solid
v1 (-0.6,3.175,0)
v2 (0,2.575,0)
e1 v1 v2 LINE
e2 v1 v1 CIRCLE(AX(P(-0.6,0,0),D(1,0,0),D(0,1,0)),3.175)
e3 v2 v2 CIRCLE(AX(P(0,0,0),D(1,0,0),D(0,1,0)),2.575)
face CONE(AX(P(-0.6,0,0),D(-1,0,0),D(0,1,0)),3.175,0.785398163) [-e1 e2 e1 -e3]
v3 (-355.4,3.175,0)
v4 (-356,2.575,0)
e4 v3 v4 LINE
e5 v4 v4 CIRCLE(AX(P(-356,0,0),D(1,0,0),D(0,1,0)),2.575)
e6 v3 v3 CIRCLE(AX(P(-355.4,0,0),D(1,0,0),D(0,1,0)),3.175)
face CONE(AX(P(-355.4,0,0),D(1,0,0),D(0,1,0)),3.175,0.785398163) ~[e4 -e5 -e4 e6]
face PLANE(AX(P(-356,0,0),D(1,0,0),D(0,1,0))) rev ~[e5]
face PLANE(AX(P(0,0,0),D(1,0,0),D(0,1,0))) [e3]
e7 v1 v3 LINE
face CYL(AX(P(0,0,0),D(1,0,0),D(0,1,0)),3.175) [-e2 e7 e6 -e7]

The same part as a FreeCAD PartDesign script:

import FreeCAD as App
import Part
import Sketcher


def edges_at(feature, points):
    """Names of the edges that pass closest to the given points."""
    edges = feature.Shape.Edges
    near = lambda p: min(range(len(edges)), key=lambda i: edges[i].distToShape(Part.Vertex(*p))[0])
    return sorted({f"Edge{near(p) + 1}" for p in points})

doc = App.newDocument("Part")
body = doc.addObject("PartDesign::Body", "Body")

# Sketch on YZ plane
sketch1 = body.newObject("Sketcher::SketchObject", "Sketch")
sketch1.AttachmentSupport = (doc.getObject("YZ_Plane"), [""])
sketch1.MapMode = "FlatFace"
sketch1.addGeometry(Part.Circle(App.Vector(0, 0, 0), App.Vector(0, 0, 1), 3.2), False)
sketch1.addConstraint(Sketcher.Constraint("Coincident", 0, 3, -1, 1))
sketch1.addConstraint(Sketcher.Constraint("Diameter", 0, 6.35))
pad1 = body.newObject("PartDesign::Pad", "Pad")
pad1.Profile = sketch1
pad1.Length = 356
pad1.Reversed = True
doc.recompute()

chamfer = body.newObject("PartDesign::Chamfer", "Chamfer")
chamfer.Base = (pad1, edges_at(pad1, [(0, -3.175, 0), (-356, -3.175, 0)]))
chamfer.Size = 0.6

doc.recompute()
